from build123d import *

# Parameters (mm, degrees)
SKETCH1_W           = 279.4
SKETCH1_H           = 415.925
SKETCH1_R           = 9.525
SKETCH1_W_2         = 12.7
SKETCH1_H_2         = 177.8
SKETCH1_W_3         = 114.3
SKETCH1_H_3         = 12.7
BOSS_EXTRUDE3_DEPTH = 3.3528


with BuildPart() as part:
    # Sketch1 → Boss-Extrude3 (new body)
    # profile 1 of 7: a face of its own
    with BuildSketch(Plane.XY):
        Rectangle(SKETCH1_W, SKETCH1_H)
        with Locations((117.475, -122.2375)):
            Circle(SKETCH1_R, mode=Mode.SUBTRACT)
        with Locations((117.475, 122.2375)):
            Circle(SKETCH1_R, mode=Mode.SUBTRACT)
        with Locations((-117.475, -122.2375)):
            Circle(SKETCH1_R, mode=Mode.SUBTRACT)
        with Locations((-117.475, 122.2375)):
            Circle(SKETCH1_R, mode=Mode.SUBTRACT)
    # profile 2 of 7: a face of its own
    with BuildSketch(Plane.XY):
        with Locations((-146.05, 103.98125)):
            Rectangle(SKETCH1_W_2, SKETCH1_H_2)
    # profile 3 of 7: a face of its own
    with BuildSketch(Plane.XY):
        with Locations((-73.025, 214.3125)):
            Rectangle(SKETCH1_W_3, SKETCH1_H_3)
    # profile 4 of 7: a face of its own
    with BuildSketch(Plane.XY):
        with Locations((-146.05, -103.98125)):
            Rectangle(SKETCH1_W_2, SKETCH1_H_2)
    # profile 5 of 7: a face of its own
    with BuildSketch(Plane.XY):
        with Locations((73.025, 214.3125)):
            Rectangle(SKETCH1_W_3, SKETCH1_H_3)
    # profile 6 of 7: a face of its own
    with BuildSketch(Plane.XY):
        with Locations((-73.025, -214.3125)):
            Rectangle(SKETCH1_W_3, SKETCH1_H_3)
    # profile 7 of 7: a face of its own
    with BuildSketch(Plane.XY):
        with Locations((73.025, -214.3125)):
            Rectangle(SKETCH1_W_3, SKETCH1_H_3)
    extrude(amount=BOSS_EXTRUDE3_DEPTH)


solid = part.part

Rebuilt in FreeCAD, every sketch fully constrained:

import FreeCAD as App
import Part
import Sketcher
Q = App.Units.Quantity


def add_polygon(sketch, points):
    """Adds a closed chain of lines whose ends are joined by coincident constraints."""
    first, n = sketch.GeometryCount, len(points)
    for a, b in zip(points, points[1:] + points[:1]):
        sketch.addGeometry(Part.LineSegment(App.Vector(*a, 0), App.Vector(*b, 0)), False)
    for i in range(n):
        sketch.addConstraint(Sketcher.Constraint("Coincident", first + i, 2, first + (i + 1) % n, 1))

doc = App.newDocument("Part")
params = doc.addObject("Spreadsheet::Sheet", "Params")
for row, (alias, value) in enumerate([
    ("sketch1_diameter", "0.75 in"),
    ("sketch1_height", "7 in"),
    ("sketch1_width", "4.5 in"),
    ("sketch1_width2", "0.5 in"),
    ("sketch1_width3", "1.25 in"),
    ("pad1_length", "0.132 in"),
], start=1):
    params.set(f"A{row}", alias)
    params.set(f"B{row}", "=" + value)
    params.setAlias(f"B{row}", alias)

body = doc.addObject("PartDesign::Body", "Body")

sketch1 = body.newObject("Sketcher::SketchObject", "Sketch")
sketch1.AttachmentSupport = (doc.getObject("XY_Plane"), [""])
sketch1.MapMode = "FlatFace"
add_polygon(sketch1, [(-140, -193), (-140, -208), (-130, -208), (-130, -221), (-16, -221), (-16, -208), (16, -208), (16, -221), (130, -221), (130, -208), (140, -208), (140, 208), (130, 208), (130, 221), (16, 221), (16, 208), (-16, 208), (-16, 221), (-130, 221), (-130, 208), (-140, 208), (-140, 193), (-152, 193), (-152, 15), (-140, 15), (-140, -15), (-152, -15), (-152, -193)])
sketch1.addGeometry(Part.Circle(App.Vector(-117, -122, 0), App.Vector(0, 0, 1), 10), False)
sketch1.addGeometry(Part.Circle(App.Vector(117, -122, 0), App.Vector(0, 0, 1), 10), False)
sketch1.addGeometry(Part.Circle(App.Vector(-117, 122, 0), App.Vector(0, 0, 1), 10), False)
sketch1.addGeometry(Part.Circle(App.Vector(117, 122, 0), App.Vector(0, 0, 1), 10), False)
sketch1.addConstraint([
    Sketcher.Constraint("Vertical", 0),
    Sketcher.Constraint("Horizontal", 1),
    Sketcher.Constraint("Vertical", 2),
    Sketcher.Constraint("Horizontal", 3),
    Sketcher.Constraint("Vertical", 4),
    Sketcher.Constraint("Horizontal", 5),
    Sketcher.Constraint("Vertical", 6),
    Sketcher.Constraint("Horizontal", 7),
    Sketcher.Constraint("Vertical", 8),
    Sketcher.Constraint("Horizontal", 9),
    Sketcher.Constraint("Vertical", 10),
    Sketcher.Constraint("Horizontal", 11),
    Sketcher.Constraint("Vertical", 12),
    Sketcher.Constraint("Horizontal", 13),
    Sketcher.Constraint("Vertical", 14),
    Sketcher.Constraint("Horizontal", 15),
    Sketcher.Constraint("Vertical", 16),
    Sketcher.Constraint("Horizontal", 17),
    Sketcher.Constraint("Vertical", 18),
    Sketcher.Constraint("Horizontal", 19),
    Sketcher.Constraint("Vertical", 20),
    Sketcher.Constraint("Horizontal", 21),
    Sketcher.Constraint("Vertical", 22),
    Sketcher.Constraint("Horizontal", 23),
    Sketcher.Constraint("Vertical", 24),
    Sketcher.Constraint("Horizontal", 25),
    Sketcher.Constraint("Vertical", 26),
    Sketcher.Constraint("Horizontal", 27),
    Sketcher.Constraint("Equal", 28, 29),
    Sketcher.Constraint("Equal", 29, 30),
    Sketcher.Constraint("Equal", 30, 31),
    Sketcher.Constraint("Symmetric", 29, 3, 30, 3, -1, 1),
    Sketcher.Constraint("Symmetric", 28, 3, 31, 3, -1, 1),
    Sketcher.Constraint("Symmetric", 0, 2, 10, 2, -1, 1),
    Sketcher.Constraint("Symmetric", 2, 2, 12, 2, -1, 1),
    Sketcher.Constraint("Symmetric", 4, 2, 14, 2, -1, 1),
    Sketcher.Constraint("Symmetric", 6, 2, 16, 2, -1, 1),
    Sketcher.Constraint("Symmetric", 8, 2, 18, 2, -1, 1),
    Sketcher.Constraint("Symmetric", 28, 3, 29, 3, -2),
    Sketcher.Constraint("Symmetric", 3, 2, 6, 2, -2),
    Sketcher.Constraint("Symmetric", 1, 2, 8, 2, -2),
    Sketcher.Constraint("Symmetric", 22, 2, 25, 2, -1),
    Sketcher.Constraint("Symmetric", 20, 2, 27, 2, -1),
    Sketcher.Constraint("Horizontal", 1, 2, 4, 2),
    Sketcher.Constraint("Vertical", 20, 2, 23, 2),
    Sketcher.Constraint("Equal", 27, 2),
    Sketcher.Constraint("Diameter", 28, Q("0.75 in")),
    Sketcher.Constraint("DistanceY", 22, 2, 22, 1, Q("7 in")),
    Sketcher.Constraint("DistanceX", 3, 1, 3, 2, Q("4.5 in")),
    Sketcher.Constraint("DistanceX", 21, 2, 21, 1, Q("0.5 in")),
    Sketcher.Constraint("DistanceX", 21, 2, -1, 1, Q("6 in")),
    Sketcher.Constraint("DistanceY", 0, 2, 30, 3, Q("13 in")),
    Sketcher.Constraint("DistanceX", 28, 3, 3, 2, Q("4 in")),
    Sketcher.Constraint("DistanceX", 5, 1, 5, 2, Q("1.25 in")),
    Sketcher.Constraint("DistanceY", 0, 2, 0, 1, Q("0.59375 in")),
    Sketcher.Constraint("DistanceY", 10, 1, 10, 2, Q("16.375 in")),
])
sketch1.setExpression("Constraints[74]", "Params.sketch1_diameter")
sketch1.setExpression("Constraints[75]", "Params.sketch1_height")
sketch1.setExpression("Constraints[76]", "Params.sketch1_width")
sketch1.setExpression("Constraints[77]", "Params.sketch1_width2")
sketch1.setExpression("Constraints[81]", "Params.sketch1_width3")
pad1 = body.newObject("PartDesign::Pad", "Pad")
pad1.Profile = sketch1
pad1.setExpression("Length", "Params.pad1_length")

doc.recompute()
